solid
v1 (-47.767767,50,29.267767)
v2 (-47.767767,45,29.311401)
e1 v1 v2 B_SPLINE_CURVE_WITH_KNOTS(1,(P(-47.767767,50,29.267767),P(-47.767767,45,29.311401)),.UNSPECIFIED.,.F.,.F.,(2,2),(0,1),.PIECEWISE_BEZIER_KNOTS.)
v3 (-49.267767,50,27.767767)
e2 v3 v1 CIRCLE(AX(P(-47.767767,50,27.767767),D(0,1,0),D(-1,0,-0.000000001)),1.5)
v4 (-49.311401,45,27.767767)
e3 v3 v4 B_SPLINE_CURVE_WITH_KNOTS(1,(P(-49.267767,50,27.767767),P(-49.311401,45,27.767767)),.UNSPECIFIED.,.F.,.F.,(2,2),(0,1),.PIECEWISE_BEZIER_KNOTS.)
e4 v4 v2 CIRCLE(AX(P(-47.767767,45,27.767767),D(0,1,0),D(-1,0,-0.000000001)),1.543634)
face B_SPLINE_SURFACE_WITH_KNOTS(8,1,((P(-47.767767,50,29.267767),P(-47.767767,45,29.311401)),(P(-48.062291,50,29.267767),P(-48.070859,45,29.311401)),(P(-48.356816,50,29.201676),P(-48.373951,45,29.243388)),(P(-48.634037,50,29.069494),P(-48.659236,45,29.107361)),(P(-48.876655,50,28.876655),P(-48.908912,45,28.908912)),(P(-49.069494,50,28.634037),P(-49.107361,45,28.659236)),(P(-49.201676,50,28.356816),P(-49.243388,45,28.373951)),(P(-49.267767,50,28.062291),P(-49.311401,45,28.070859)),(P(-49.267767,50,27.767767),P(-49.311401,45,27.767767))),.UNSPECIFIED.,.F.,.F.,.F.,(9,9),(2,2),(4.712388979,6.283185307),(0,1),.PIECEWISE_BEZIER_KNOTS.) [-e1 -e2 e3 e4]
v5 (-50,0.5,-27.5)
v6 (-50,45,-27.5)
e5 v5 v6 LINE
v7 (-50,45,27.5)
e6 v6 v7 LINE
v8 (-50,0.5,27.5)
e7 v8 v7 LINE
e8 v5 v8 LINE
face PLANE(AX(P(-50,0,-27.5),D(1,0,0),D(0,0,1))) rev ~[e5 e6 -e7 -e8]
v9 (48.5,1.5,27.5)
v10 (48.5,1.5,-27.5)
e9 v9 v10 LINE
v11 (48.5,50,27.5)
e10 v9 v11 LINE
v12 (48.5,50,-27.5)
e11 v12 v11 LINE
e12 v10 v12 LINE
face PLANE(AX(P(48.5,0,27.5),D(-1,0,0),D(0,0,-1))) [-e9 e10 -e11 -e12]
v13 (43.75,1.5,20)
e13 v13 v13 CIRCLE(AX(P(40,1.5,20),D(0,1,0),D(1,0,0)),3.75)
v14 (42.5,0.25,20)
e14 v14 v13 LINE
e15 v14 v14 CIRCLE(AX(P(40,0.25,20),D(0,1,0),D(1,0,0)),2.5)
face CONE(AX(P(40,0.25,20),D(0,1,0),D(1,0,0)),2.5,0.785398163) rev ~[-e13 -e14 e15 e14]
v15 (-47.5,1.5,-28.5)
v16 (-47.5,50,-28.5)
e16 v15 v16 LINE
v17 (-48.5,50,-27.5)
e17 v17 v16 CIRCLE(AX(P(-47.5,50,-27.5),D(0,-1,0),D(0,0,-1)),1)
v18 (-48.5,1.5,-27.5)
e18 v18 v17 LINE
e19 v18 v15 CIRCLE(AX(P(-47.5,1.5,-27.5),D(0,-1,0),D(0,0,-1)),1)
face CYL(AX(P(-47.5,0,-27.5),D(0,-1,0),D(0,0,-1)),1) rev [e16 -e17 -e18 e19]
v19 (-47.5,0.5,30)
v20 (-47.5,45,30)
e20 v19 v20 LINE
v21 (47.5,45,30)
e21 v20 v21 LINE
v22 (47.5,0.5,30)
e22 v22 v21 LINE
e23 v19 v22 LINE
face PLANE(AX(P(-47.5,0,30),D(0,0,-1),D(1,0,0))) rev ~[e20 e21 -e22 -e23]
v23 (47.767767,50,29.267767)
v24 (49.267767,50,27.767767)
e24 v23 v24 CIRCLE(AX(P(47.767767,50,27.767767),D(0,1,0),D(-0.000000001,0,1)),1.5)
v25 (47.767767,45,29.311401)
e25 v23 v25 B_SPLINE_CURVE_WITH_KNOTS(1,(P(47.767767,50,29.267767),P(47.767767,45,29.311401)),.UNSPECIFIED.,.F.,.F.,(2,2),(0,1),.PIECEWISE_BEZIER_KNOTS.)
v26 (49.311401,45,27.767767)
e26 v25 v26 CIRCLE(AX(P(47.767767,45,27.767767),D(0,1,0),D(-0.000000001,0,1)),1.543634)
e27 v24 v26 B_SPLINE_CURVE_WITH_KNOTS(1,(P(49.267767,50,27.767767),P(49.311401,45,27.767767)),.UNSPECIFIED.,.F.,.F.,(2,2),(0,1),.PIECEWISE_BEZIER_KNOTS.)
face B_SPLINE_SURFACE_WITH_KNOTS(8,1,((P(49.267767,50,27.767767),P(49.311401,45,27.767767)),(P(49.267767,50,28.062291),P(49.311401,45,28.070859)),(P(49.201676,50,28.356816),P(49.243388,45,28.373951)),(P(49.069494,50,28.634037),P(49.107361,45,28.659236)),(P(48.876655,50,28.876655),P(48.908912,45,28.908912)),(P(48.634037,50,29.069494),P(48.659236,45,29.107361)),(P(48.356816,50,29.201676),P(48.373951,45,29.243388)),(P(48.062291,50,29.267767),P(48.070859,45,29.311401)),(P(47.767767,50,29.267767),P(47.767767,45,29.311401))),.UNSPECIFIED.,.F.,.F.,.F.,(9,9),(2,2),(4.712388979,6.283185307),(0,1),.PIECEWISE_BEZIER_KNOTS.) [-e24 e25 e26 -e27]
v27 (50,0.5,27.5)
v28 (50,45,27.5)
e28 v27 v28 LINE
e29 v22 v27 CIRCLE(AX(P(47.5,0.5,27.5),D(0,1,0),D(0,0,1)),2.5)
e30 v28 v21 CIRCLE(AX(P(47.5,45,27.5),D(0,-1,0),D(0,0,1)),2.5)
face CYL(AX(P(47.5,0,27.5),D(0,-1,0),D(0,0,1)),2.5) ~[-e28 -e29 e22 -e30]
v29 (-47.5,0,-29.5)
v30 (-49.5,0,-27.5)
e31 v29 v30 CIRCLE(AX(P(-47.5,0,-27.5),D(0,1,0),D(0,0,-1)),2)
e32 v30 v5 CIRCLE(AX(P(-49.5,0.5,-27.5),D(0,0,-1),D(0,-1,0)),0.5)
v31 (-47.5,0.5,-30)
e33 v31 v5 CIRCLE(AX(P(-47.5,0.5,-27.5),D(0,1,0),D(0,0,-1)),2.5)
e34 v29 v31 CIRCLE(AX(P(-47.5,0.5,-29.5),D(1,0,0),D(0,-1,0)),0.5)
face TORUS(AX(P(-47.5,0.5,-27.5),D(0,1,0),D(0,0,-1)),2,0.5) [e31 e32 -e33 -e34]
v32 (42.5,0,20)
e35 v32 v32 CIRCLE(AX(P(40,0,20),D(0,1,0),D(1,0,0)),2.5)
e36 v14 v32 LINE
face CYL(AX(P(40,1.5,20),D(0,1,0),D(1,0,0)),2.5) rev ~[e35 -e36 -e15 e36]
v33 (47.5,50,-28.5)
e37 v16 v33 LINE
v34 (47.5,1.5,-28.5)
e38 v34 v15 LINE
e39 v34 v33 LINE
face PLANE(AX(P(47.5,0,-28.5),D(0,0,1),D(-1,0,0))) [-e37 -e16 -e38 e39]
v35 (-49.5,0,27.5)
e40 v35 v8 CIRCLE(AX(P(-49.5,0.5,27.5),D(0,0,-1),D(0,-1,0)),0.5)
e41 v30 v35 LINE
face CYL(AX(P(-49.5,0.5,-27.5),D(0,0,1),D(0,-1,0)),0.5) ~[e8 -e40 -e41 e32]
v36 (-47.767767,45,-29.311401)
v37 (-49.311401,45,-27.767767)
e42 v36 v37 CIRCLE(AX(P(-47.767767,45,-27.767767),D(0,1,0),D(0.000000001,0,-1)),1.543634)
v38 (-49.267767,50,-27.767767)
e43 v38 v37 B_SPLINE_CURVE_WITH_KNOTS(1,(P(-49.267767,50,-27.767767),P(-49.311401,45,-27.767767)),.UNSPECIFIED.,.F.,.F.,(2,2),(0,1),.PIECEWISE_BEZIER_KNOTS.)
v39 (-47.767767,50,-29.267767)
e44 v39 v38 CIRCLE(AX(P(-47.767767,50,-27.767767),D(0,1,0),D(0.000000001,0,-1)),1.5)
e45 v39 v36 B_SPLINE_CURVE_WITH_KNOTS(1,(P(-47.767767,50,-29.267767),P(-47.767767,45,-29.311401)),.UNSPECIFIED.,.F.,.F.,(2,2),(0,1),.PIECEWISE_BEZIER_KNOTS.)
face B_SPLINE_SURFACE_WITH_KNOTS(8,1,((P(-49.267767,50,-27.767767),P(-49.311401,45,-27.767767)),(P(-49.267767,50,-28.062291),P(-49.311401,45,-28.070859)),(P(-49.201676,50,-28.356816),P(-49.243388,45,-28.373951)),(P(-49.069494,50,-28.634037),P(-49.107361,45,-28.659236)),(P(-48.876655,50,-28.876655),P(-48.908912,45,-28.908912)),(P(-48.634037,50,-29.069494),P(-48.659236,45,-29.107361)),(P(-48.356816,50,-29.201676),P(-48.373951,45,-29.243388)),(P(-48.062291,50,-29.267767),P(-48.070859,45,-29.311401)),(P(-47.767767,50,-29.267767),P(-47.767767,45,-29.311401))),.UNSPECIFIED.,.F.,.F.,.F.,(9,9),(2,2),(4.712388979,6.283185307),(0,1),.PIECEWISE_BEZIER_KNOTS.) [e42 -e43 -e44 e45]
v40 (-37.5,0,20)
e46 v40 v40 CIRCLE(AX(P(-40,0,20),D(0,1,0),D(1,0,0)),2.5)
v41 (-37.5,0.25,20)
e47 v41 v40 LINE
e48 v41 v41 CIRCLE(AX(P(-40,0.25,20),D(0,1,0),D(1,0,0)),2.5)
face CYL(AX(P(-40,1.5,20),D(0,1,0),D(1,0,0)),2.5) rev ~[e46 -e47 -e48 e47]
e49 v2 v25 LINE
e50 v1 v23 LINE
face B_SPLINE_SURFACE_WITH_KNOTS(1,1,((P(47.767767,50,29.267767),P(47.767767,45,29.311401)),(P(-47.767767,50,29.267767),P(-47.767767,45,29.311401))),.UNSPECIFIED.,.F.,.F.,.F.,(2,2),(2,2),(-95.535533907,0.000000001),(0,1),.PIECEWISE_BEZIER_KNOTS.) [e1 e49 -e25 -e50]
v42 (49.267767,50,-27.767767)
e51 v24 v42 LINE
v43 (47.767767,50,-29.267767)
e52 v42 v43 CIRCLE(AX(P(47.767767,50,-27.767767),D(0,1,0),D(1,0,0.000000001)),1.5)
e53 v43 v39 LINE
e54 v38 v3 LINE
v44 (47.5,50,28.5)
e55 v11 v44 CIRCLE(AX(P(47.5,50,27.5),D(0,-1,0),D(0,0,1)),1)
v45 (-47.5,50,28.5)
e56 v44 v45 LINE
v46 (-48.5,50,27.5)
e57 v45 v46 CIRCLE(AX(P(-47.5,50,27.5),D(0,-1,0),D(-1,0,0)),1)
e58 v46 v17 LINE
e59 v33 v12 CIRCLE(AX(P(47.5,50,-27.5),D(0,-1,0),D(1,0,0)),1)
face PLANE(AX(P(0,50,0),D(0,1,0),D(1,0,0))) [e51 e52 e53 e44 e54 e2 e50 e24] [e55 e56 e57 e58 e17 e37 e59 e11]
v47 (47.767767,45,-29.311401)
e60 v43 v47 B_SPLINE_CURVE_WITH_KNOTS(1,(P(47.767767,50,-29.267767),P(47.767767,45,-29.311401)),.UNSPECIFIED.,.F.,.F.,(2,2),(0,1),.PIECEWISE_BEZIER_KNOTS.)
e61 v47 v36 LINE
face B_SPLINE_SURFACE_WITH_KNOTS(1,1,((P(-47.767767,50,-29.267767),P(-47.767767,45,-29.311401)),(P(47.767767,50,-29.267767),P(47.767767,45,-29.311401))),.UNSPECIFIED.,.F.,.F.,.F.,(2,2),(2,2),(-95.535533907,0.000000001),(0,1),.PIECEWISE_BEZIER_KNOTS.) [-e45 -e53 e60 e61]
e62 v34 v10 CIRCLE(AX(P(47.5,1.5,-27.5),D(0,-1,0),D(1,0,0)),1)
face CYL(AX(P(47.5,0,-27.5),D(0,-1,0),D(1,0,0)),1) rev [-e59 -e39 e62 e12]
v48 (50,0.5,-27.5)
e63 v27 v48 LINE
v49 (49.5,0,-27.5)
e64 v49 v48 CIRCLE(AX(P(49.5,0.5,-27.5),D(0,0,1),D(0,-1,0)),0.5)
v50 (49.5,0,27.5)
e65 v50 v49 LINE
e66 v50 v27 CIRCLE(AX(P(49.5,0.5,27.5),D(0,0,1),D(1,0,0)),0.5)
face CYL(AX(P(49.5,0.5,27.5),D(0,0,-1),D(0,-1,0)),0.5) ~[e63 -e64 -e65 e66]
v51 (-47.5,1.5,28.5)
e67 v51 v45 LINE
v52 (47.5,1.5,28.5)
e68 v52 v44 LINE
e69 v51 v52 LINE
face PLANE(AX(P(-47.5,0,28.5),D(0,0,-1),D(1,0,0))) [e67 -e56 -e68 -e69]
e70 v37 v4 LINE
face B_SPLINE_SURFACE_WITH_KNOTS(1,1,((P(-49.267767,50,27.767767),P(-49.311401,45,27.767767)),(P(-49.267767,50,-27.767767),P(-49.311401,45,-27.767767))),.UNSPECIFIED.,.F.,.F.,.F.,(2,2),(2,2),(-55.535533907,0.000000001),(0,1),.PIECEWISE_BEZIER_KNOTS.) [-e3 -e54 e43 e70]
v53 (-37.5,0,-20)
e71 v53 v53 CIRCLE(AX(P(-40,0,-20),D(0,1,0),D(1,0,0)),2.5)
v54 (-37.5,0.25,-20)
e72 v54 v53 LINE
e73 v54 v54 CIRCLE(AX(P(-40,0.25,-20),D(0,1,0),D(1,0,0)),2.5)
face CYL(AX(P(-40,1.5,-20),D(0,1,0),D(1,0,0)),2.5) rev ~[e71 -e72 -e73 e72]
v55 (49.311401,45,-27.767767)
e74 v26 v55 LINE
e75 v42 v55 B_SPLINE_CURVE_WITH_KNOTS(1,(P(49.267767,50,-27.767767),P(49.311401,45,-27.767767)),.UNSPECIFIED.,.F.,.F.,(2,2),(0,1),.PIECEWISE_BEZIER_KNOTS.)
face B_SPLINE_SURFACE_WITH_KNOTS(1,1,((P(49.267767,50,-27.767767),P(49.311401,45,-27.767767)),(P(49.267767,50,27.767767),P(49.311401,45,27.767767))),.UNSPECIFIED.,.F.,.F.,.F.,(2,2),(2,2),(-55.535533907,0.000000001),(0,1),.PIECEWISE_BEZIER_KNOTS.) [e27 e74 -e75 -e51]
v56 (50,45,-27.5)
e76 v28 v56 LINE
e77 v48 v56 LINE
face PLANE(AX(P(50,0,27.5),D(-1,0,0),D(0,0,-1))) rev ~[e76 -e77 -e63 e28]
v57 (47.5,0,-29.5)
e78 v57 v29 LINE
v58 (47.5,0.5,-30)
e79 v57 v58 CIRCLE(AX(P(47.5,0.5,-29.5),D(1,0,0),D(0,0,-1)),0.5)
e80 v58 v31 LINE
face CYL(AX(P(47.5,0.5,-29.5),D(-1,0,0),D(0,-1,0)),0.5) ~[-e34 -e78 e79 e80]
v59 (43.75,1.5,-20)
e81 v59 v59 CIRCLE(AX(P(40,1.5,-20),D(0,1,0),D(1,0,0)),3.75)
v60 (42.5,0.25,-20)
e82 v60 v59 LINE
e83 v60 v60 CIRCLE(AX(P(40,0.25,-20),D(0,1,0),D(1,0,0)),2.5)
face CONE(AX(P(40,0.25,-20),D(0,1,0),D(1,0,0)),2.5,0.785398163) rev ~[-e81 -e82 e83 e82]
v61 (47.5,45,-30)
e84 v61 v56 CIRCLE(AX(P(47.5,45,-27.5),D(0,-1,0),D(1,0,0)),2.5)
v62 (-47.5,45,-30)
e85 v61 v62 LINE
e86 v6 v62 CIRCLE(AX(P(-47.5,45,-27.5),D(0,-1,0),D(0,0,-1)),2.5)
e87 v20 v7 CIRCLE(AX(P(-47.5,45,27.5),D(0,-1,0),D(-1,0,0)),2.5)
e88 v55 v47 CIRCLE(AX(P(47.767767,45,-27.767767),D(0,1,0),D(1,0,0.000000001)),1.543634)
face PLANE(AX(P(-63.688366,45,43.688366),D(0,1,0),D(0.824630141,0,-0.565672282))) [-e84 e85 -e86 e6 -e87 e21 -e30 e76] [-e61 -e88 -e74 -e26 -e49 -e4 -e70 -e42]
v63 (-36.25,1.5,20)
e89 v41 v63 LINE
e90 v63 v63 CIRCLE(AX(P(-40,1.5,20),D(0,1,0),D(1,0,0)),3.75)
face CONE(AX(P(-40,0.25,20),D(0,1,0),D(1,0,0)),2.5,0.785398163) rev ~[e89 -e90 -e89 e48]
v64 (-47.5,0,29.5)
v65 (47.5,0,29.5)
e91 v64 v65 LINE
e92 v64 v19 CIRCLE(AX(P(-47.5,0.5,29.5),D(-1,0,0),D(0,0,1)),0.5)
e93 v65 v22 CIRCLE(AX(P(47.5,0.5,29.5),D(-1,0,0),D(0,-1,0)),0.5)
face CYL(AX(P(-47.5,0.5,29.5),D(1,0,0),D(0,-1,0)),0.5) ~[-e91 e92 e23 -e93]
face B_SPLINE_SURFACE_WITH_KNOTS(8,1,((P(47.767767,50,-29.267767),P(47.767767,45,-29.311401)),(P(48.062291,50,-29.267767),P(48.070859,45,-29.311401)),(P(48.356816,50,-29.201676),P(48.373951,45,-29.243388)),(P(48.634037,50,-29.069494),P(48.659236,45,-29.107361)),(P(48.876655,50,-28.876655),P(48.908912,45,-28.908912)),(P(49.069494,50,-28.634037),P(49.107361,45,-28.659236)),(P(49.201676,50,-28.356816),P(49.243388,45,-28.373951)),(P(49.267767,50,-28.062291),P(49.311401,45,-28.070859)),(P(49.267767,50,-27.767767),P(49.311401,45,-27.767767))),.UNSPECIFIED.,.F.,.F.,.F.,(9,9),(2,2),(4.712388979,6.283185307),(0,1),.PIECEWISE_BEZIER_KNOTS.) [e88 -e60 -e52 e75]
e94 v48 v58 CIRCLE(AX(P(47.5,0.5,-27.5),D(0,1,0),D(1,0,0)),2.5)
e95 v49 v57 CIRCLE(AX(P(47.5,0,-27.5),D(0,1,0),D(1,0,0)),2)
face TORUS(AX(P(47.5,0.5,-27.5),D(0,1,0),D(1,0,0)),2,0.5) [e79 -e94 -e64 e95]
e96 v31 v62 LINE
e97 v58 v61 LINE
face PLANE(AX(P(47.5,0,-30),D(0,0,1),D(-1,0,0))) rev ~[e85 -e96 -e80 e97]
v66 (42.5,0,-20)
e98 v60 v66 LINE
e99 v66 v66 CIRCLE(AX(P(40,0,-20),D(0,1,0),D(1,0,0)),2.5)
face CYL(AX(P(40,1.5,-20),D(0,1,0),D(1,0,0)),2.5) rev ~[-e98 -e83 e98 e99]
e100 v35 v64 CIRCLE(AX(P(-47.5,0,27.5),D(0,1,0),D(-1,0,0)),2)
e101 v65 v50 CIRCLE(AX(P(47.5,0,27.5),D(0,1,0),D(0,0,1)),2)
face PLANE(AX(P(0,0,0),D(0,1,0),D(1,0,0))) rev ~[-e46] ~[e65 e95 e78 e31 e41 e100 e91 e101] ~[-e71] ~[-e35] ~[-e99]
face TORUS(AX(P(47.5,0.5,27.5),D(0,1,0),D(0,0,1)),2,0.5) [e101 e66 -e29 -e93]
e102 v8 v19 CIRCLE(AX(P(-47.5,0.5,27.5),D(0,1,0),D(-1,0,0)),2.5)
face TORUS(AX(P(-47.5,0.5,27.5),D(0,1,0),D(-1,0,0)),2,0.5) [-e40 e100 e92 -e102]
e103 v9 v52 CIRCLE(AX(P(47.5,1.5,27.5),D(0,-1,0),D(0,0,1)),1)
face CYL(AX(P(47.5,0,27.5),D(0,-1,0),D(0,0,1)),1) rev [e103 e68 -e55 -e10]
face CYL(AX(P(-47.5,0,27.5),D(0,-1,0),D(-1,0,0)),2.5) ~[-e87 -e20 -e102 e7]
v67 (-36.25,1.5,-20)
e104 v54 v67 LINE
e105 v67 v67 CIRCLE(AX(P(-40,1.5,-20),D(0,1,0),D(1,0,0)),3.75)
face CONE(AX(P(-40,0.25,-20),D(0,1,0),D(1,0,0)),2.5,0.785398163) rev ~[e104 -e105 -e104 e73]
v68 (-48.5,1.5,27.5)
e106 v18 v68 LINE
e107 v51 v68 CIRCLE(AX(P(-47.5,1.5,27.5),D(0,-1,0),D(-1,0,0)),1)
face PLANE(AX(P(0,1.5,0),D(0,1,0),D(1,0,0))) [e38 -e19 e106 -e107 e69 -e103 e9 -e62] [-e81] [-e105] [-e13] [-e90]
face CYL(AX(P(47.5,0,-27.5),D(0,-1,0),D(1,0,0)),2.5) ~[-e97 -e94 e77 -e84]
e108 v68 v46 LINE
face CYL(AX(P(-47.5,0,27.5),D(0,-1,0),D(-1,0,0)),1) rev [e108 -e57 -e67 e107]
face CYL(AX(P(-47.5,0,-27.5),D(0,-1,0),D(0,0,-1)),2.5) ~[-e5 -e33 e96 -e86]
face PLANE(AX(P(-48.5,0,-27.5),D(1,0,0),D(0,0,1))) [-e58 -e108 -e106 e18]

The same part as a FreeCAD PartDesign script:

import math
import FreeCAD as App
import Part
import Sketcher
from FreeCAD import Vector


def edges_at(feature, points):
    """Names of the edges that pass closest to the given points."""
    edges = feature.Shape.Edges
    near = lambda p: min(range(len(edges)), key=lambda i: edges[i].distToShape(Part.Vertex(*p))[0])
    return sorted({f"Edge{near(p) + 1}" for p in points})


def faces_at(feature, points):
    """Names of the faces that lie closest to the given points."""
    faces = feature.Shape.Faces
    near = lambda p: min(range(len(faces)), key=lambda i: faces[i].distToShape(Part.Vertex(*p))[0])
    return sorted({f"Face{near(p) + 1}" for p in points})

doc = App.newDocument("Part")
body = doc.addObject("PartDesign::Body", "Body")

# Sketch on XZ plane
sketch1 = body.newObject("Sketcher::SketchObject", "Sketch")
sketch1.AttachmentSupport = (doc.getObject("XZ_Plane"), [""])
sketch1.MapMode = "FlatFace"
sketch1.addGeometry([
    Part.LineSegment(Vector(-47.5, 30, 0), Vector(47.5, 30, 0)),  # 0
    Part.ArcOfCircle(Part.Circle(Vector(47.5, 27.5, 0), Vector(0, 0, 1), 2.5), math.radians(0), math.radians(90)),  # 1
    Part.LineSegment(Vector(50, 27.5, 0), Vector(50, -27.5, 0)),  # 2
    Part.ArcOfCircle(Part.Circle(Vector(47.5, -27.5, 0), Vector(0, 0, 1), 2.5), math.radians(-90), math.radians(0)),  # 3
    Part.LineSegment(Vector(47.5, -30, 0), Vector(-47.5, -30, 0)),  # 4
    Part.ArcOfCircle(Part.Circle(Vector(-47.5, -27.5, 0), Vector(0, 0, 1), 2.5), math.radians(180), math.radians(270)),  # 5
    Part.LineSegment(Vector(-50, -27.5, 0), Vector(-50, 27.5, 0)),  # 6
    Part.ArcOfCircle(Part.Circle(Vector(-47.5, 27.5, 0), Vector(0, 0, 1), 2.5), math.radians(90), math.radians(180)),  # 7
], False)
sketch1.addConstraint([
    Sketcher.Constraint("Tangent", 0, 2, 1, 2),
    Sketcher.Constraint("Tangent", 1, 1, 2, 1),
    Sketcher.Constraint("Tangent", 2, 2, 3, 2),
    Sketcher.Constraint("Tangent", 3, 1, 4, 1),
    Sketcher.Constraint("Tangent", 4, 2, 5, 2),
    Sketcher.Constraint("Tangent", 5, 1, 6, 1),
    Sketcher.Constraint("Tangent", 6, 2, 7, 2),
    Sketcher.Constraint("Tangent", 7, 1, 0, 1),
    Sketcher.Constraint("Horizontal", 0),
    Sketcher.Constraint("Vertical", 2),
    Sketcher.Constraint("Horizontal", 4),
    Sketcher.Constraint("Vertical", 6),
    Sketcher.Constraint("Equal", 1, 3),
    Sketcher.Constraint("Equal", 3, 5),
    Sketcher.Constraint("Equal", 5, 7),
    Sketcher.Constraint("Symmetric", 1, 3, 5, 3, -1, 1),
    Sketcher.Constraint("Radius", 1, 2.5),
    Sketcher.Constraint("DistanceX", 0, 1, 0, 2, 95.0),
    Sketcher.Constraint("DistanceY", 2, 2, 2, 1, 55.0),
])
pad1 = body.newObject("PartDesign::Pad", "Pad")
pad1.Profile = sketch1
pad1.Length = 50
pad1.Reversed = True
doc.recompute()

thickness = body.newObject("PartDesign::Thickness", "Thickness")
thickness.Base = (pad1, faces_at(pad1, [(0, 50, 0)]))
thickness.Value = 1.5
thickness.Reversed = True
thickness.Join = "Intersection"

# Sketch on XZ plane
sketch2 = body.newObject("Sketcher::SketchObject", "Sketch001")
sketch2.AttachmentSupport = (doc.getObject("XZ_Plane"), [""])
sketch2.MapMode = "FlatFace"
sketch2.AttachmentOffset = App.Placement(Vector(0, 0, -1.5), App.Rotation())
sketch2.addGeometry([
    Part.Circle(Vector(-40, -20, 0), Vector(0, 0, 1), 2.5),
    Part.Circle(Vector(40, -20, 0), Vector(0, 0, 1), 2.5),
    Part.Circle(Vector(40, 20, 0), Vector(0, 0, 1), 2.5),
    Part.Circle(Vector(-40, 20, 0), Vector(0, 0, 1), 2.5),
], False)
sketch2.addConstraint([
    Sketcher.Constraint("Equal", 0, 1),
    Sketcher.Constraint("Equal", 1, 2),
    Sketcher.Constraint("Equal", 2, 3),
    Sketcher.Constraint("Symmetric", 0, 3, 2, 3, -1, 1),
    Sketcher.Constraint("Symmetric", 1, 3, 3, 3, -1, 1),
    Sketcher.Constraint("Symmetric", 0, 3, 1, 3, -2),
    Sketcher.Constraint("Diameter", 0, 5.0),
    Sketcher.Constraint("DistanceX", 0, 3, -1, 1, 40.0),
    Sketcher.Constraint("DistanceY", 0, 3, -1, 1, 20.0),
])
pocket1 = body.newObject("PartDesign::Pocket", "Pocket")
pocket1.Profile = sketch2
pocket1.Length = 50
pocket1.Reversed = True

# Sketch on XZ plane
sketch3 = body.newObject("Sketcher::SketchObject", "Sketch002")
sketch3.AttachmentSupport = (doc.getObject("XZ_Plane"), [""])
sketch3.MapMode = "FlatFace"
sketch3.AttachmentOffset = App.Placement(Vector(0, 0, -50), App.Rotation())
sketch3.addGeometry([
    Part.LineSegment(Vector(-63.7, -43.7, 0), Vector(-63.7, 43.7, 0)),  # 0
    Part.LineSegment(Vector(-63.7, 43.7, 0), Vector(63.7, 43.7, 0)),  # 1
    Part.LineSegment(Vector(63.7, 43.7, 0), Vector(63.7, -43.7, 0)),  # 2
    Part.LineSegment(Vector(63.7, -43.7, 0), Vector(-63.7, -43.7, 0)),  # 3
    Part.LineSegment(Vector(47.8, 29.3, 0), Vector(-47.8, 29.3, 0)),  # 4
    Part.ArcOfCircle(Part.Circle(Vector(-47.8, 27.8, 0), Vector(0, 0, 1), 1.5), math.radians(90), math.radians(180)),  # 5
    Part.LineSegment(Vector(-49.3, 27.8, 0), Vector(-49.3, -27.8, 0)),  # 6
    Part.ArcOfCircle(Part.Circle(Vector(-47.8, -27.8, 0), Vector(0, 0, 1), 1.5), math.radians(180), math.radians(270)),  # 7
    Part.LineSegment(Vector(-47.8, -29.3, 0), Vector(47.8, -29.3, 0)),  # 8
    Part.ArcOfCircle(Part.Circle(Vector(47.8, -27.8, 0), Vector(0, 0, 1), 1.5), math.radians(-90), math.radians(0)),  # 9
    Part.LineSegment(Vector(49.3, -27.8, 0), Vector(49.3, 27.8, 0)),  # 10
    Part.ArcOfCircle(Part.Circle(Vector(47.8, 27.8, 0), Vector(0, 0, 1), 1.5), math.radians(0), math.radians(90)),  # 11
], False)
sketch3.addConstraint([
    Sketcher.Constraint("Coincident", 0, 2, 1, 1),
    Sketcher.Constraint("Coincident", 1, 2, 2, 1),
    Sketcher.Constraint("Coincident", 2, 2, 3, 1),
    Sketcher.Constraint("Coincident", 3, 2, 0, 1),
    Sketcher.Constraint("Tangent", 4, 2, 5, 1),
    Sketcher.Constraint("Tangent", 5, 2, 6, 1),
    Sketcher.Constraint("Tangent", 6, 2, 7, 1),
    Sketcher.Constraint("Tangent", 7, 2, 8, 1),
    Sketcher.Constraint("Tangent", 8, 2, 9, 1),
    Sketcher.Constraint("Tangent", 9, 2, 10, 1),
    Sketcher.Constraint("Tangent", 10, 2, 11, 1),
    Sketcher.Constraint("Tangent", 11, 2, 4, 1),
    Sketcher.Constraint("Vertical", 0),
    Sketcher.Constraint("Horizontal", 1),
    Sketcher.Constraint("Vertical", 2),
    Sketcher.Constraint("Horizontal", 3),
    Sketcher.Constraint("Horizontal", 4),
    Sketcher.Constraint("Vertical", 6),
    Sketcher.Constraint("Horizontal", 8),
    Sketcher.Constraint("Vertical", 10),
    Sketcher.Constraint("Equal", 5, 7),
    Sketcher.Constraint("Equal", 7, 9),
    Sketcher.Constraint("Equal", 9, 11),
    Sketcher.Constraint("Symmetric", 5, 3, 9, 3, -1, 1),
    Sketcher.Constraint("Symmetric", 0, 2, 2, 2, -1, 1),
    Sketcher.Constraint("Radius", 5, 1.5),
    Sketcher.Constraint("DistanceX", 1, 1, 1, 2, 127.464),
    Sketcher.Constraint("DistanceY", 0, 1, 0, 2, 87.464),
    Sketcher.Constraint("DistanceX", 4, 2, 4, 1, 95.535534),
    Sketcher.Constraint("DistanceY", 6, 2, 6, 1, 55.535534),
])
pocket2 = body.newObject("PartDesign::Pocket", "Pocket001")
pocket2.Profile = sketch3
pocket2.Length = 5
pocket2.Reversed = True
pocket2.TaperAngle = 0.5
doc.recompute()

fillet = body.newObject("PartDesign::Fillet", "Fillet")
fillet.Base = (pocket2, edges_at(pocket2, [
    (-50, 0, 0),
    (-49.268, 0, -29.268),
    (0, 0, -30),
    (49.268, 0, -29.268),
    (50, 0, 0),
    (49.268, 0, 29.268),
    (0, 0, 30),
    (-49.268, 0, 29.268),
]))
fillet.Radius = 0.5
doc.recompute()

chamfer = body.newObject("PartDesign::Chamfer", "Chamfer")
chamfer.Base = (fillet, edges_at(fillet, [
    (-42.5, 1.5, -20),
    (37.5, 1.5, -20),
    (37.5, 1.5, 20),
    (-42.5, 1.5, 20),
]))
chamfer.Size = 1.25

doc.recompute()
